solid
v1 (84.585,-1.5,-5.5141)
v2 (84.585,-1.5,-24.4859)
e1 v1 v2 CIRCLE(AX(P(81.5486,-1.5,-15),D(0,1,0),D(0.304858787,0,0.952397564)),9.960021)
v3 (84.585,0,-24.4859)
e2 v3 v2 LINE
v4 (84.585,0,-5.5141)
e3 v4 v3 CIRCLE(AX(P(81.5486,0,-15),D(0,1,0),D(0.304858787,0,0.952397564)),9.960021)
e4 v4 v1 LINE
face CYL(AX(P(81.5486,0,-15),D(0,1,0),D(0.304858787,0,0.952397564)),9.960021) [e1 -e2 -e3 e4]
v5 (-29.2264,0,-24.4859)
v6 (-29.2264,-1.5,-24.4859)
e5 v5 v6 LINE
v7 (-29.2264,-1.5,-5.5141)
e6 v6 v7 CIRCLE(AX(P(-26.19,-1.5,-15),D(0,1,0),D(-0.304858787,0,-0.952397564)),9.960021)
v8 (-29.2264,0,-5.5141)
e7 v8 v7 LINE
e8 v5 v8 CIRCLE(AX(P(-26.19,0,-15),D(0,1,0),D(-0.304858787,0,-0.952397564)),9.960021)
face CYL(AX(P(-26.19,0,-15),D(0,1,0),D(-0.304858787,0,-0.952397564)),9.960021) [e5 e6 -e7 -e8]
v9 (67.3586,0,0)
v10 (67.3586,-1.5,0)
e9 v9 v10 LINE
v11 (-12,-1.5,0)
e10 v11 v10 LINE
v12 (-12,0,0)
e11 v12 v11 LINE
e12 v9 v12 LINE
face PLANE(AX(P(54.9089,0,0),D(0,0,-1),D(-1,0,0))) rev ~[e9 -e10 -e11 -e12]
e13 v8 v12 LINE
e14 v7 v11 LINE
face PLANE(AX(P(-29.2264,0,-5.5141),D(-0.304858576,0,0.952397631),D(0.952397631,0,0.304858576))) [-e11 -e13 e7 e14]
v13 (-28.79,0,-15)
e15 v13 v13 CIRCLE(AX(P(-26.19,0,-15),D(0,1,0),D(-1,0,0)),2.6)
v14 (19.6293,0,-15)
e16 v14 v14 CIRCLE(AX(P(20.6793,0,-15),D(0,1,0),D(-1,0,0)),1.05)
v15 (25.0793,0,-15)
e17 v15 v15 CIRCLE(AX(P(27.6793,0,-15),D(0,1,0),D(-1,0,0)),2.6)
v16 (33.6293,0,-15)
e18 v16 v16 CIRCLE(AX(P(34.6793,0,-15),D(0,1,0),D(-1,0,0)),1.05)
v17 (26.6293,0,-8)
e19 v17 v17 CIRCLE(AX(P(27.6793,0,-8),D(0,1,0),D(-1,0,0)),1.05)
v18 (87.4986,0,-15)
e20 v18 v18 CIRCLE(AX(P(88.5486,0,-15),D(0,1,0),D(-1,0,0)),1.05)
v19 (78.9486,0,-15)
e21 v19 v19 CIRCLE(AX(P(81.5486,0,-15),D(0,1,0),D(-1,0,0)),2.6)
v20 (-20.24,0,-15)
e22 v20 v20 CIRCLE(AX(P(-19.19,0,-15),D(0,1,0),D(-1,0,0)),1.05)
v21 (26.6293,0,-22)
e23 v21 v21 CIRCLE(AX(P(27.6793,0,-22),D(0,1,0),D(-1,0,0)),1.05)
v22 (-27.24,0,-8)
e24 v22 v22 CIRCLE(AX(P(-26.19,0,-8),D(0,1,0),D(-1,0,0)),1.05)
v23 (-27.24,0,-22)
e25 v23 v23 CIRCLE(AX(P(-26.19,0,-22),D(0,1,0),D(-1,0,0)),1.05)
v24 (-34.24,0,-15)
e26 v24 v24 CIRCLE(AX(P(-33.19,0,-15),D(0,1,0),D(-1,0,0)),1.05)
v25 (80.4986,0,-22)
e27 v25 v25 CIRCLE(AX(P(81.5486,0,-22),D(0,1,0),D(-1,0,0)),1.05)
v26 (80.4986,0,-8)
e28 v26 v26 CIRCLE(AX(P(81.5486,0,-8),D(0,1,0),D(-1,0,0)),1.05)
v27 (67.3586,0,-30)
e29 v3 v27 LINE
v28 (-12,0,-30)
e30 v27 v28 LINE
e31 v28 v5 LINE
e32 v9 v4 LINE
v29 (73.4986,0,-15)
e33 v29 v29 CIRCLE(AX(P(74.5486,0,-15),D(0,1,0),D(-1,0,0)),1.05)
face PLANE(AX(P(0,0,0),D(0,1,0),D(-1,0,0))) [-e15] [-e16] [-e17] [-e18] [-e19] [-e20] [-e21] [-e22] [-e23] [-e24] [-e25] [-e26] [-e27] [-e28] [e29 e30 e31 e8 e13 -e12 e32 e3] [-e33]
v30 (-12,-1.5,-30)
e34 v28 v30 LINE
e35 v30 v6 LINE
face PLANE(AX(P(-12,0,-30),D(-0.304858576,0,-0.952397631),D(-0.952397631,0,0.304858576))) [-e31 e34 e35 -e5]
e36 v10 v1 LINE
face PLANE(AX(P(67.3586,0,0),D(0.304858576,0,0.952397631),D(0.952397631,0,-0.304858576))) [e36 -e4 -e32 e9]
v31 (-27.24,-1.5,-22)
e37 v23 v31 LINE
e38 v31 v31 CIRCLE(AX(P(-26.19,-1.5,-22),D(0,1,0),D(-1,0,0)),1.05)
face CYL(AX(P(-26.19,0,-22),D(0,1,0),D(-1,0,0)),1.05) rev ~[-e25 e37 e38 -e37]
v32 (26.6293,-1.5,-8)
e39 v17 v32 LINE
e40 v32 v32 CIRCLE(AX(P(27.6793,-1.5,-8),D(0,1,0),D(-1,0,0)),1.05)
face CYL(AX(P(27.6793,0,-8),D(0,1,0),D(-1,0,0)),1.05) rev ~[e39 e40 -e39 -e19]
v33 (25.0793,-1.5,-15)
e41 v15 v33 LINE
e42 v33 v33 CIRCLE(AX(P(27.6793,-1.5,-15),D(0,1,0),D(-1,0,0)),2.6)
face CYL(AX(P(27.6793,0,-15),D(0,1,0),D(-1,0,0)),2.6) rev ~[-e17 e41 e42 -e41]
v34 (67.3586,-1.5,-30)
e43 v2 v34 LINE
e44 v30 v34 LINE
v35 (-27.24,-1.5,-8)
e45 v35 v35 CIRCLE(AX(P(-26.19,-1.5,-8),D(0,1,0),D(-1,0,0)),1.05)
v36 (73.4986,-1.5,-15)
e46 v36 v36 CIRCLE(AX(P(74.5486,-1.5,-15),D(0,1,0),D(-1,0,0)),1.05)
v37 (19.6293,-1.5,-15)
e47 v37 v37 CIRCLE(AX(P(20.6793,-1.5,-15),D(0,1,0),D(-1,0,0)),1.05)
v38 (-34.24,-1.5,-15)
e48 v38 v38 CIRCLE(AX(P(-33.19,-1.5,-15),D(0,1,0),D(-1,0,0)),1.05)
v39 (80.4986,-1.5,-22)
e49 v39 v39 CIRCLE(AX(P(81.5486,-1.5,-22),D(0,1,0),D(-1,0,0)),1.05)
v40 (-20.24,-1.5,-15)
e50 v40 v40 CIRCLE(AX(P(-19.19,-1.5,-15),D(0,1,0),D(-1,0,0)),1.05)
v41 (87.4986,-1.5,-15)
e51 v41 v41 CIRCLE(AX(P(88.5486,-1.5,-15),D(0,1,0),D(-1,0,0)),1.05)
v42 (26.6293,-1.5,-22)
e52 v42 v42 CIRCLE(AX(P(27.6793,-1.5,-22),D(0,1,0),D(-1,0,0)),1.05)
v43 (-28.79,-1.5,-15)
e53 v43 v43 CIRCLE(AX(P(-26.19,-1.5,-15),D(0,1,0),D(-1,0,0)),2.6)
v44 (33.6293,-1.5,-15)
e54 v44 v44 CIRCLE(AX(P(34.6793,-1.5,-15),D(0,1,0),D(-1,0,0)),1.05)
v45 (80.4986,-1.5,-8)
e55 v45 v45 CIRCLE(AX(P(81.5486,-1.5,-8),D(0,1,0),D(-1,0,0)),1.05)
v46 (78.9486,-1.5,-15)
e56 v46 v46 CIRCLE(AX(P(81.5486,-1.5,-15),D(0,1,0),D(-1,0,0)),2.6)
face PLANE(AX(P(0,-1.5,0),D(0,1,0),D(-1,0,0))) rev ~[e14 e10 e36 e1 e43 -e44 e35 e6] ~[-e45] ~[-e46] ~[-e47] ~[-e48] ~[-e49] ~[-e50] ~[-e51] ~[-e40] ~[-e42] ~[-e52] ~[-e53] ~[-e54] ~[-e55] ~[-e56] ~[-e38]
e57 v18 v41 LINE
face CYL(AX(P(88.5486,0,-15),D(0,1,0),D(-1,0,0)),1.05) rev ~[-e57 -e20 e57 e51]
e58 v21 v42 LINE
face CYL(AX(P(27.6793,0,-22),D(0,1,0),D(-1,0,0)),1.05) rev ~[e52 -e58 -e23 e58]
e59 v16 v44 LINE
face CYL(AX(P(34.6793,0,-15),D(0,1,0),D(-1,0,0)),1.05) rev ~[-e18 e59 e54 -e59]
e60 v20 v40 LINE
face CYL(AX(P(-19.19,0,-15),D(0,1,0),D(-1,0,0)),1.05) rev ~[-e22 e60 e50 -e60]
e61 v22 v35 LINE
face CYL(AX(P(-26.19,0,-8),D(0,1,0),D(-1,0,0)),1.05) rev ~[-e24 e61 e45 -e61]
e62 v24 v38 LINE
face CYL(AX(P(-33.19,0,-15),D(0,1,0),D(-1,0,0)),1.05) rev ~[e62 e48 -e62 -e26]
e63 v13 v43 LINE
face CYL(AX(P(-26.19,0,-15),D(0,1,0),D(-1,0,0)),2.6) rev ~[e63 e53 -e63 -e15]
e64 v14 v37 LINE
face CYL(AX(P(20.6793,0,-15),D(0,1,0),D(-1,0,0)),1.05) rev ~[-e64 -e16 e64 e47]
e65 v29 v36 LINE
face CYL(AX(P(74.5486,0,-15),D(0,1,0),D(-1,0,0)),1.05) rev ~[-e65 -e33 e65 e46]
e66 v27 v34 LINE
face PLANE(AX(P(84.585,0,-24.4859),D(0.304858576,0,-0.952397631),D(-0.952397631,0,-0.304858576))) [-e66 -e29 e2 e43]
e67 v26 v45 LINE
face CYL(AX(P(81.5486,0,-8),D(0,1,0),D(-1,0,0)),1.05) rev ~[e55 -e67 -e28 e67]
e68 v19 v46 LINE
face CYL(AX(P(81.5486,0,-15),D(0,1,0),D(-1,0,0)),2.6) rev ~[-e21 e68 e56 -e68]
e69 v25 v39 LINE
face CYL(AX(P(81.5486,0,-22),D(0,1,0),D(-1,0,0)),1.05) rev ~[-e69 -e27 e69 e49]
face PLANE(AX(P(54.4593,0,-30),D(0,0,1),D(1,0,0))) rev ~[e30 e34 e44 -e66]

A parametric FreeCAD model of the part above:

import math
import FreeCAD as App
import Part
import Sketcher
from FreeCAD import Vector
Q = App.Units.Quantity

doc = App.newDocument("Part")
body = doc.addObject("PartDesign::Body", "Body")

# Sketch on XZ plane
sketch1 = body.newObject("Sketcher::SketchObject", "Sketch")
sketch1.AttachmentSupport = (doc.getObject("XZ_Plane"), [""])
sketch1.MapMode = "FlatFace"
sketch1.addGeometry([
    Part.LineSegment(Vector(67.4, 0, 0), Vector(84.6, -5.5, 0)),  # 0
    Part.ArcOfCircle(Part.Circle(Vector(81.5, -15, 0), Vector(0, 0, 1), 10), math.radians(-72), math.radians(72)),  # 1
    Part.LineSegment(Vector(84.6, -24.5, 0), Vector(67.4, -30, 0)),  # 2
    Part.LineSegment(Vector(67.4, -30, 0), Vector(-12, -30, 0)),  # 3
    Part.LineSegment(Vector(-12, -30, 0), Vector(-29.2, -24.5, 0)),  # 4
    Part.ArcOfCircle(Part.Circle(Vector(-26.2, -15, 0), Vector(0, 0, 1), 10), math.radians(108), math.radians(252)),  # 5
    Part.LineSegment(Vector(-29.2, -5.5, 0), Vector(-12, 0, 0)),  # 6
    Part.LineSegment(Vector(-12, 0, 0), Vector(67.4, 0, 0)),  # 7
    Part.Circle(Vector(27.7, -8, 0), Vector(0, 0, 1), 1.1),  # 8
    Part.Circle(Vector(27.7, -22, 0), Vector(0, 0, 1), 1.1),  # 9
    Part.Circle(Vector(34.7, -15, 0), Vector(0, 0, 1), 1.1),  # 10
    Part.Circle(Vector(27.7, -15, 0), Vector(0, 0, 1), 2.6),  # 11
    Part.Circle(Vector(20.7, -15, 0), Vector(0, 0, 1), 1.1),  # 12
    Part.Circle(Vector(81.5, -8, 0), Vector(0, 0, 1), 1.1),  # 13
    Part.Circle(Vector(81.5, -22, 0), Vector(0, 0, 1), 1.1),  # 14
    Part.Circle(Vector(88.5, -15, 0), Vector(0, 0, 1), 1.1),  # 15
    Part.Circle(Vector(81.5, -15, 0), Vector(0, 0, 1), 2.6),  # 16
    Part.Circle(Vector(74.5, -15, 0), Vector(0, 0, 1), 1.1),  # 17
    Part.Circle(Vector(-26.2, -8, 0), Vector(0, 0, 1), 1.1),  # 18
    Part.Circle(Vector(-26.2, -22, 0), Vector(0, 0, 1), 1.1),  # 19
    Part.Circle(Vector(-19.2, -15, 0), Vector(0, 0, 1), 1.1),  # 20
    Part.Circle(Vector(-26.2, -15, 0), Vector(0, 0, 1), 2.6),  # 21
    Part.Circle(Vector(-33.2, -15, 0), Vector(0, 0, 1), 1.1),  # 22
], False)
sketch1.addConstraint([
    Sketcher.Constraint("Tangent", 0, 2, 1, 2),
    Sketcher.Constraint("Tangent", 1, 1, 2, 1),
    Sketcher.Constraint("Coincident", 2, 2, 3, 1),
    Sketcher.Constraint("Coincident", 3, 2, 4, 1),
    Sketcher.Constraint("Tangent", 4, 2, 5, 2),
    Sketcher.Constraint("Tangent", 5, 1, 6, 1),
    Sketcher.Constraint("Coincident", 6, 2, 7, 1),
    Sketcher.Constraint("Coincident", 7, 2, 0, 1),
    Sketcher.Constraint("Horizontal", 3),
    Sketcher.Constraint("Horizontal", 7),
    Sketcher.Constraint("Coincident", 16, 3, 1, 3),
    Sketcher.Constraint("Coincident", 21, 3, 5, 3),
    Sketcher.Constraint("Equal", 1, 5),
    Sketcher.Constraint("Equal", 8, 9),
    Sketcher.Constraint("Equal", 9, 10),
    Sketcher.Constraint("Equal", 10, 12),
    Sketcher.Constraint("Equal", 12, 13),
    Sketcher.Constraint("Equal", 13, 14),
    Sketcher.Constraint("Equal", 14, 15),
    Sketcher.Constraint("Equal", 11, 16),
    Sketcher.Constraint("Equal", 15, 17),
    Sketcher.Constraint("Equal", 17, 18),
    Sketcher.Constraint("Equal", 18, 19),
    Sketcher.Constraint("Equal", 19, 20),
    Sketcher.Constraint("Equal", 16, 21),
    Sketcher.Constraint("Equal", 20, 22),
    Sketcher.Constraint("PointOnObject", 6, 2, -1),
    Sketcher.Constraint("Parallel", 0, 4),
    Sketcher.Constraint("Parallel", 2, 6),
    Sketcher.Constraint("Horizontal", 1, 3, 5, 3),
    Sketcher.Constraint("Horizontal", 5, 3, 10, 3),
    Sketcher.Constraint("Horizontal", 10, 3, 11, 3),
    Sketcher.Constraint("Horizontal", 11, 3, 12, 3),
    Sketcher.Constraint("Horizontal", 8, 3, 13, 3),
    Sketcher.Constraint("Horizontal", 9, 3, 14, 3),
    Sketcher.Constraint("Horizontal", 12, 3, 15, 3),
    Sketcher.Constraint("Horizontal", 16, 3, 17, 3),
    Sketcher.Constraint("Horizontal", 13, 3, 18, 3),
    Sketcher.Constraint("Horizontal", 14, 3, 19, 3),
    Sketcher.Constraint("Horizontal", 17, 3, 20, 3),
    Sketcher.Constraint("Horizontal", 21, 3, 22, 3),
    Sketcher.Constraint("Horizontal", 1, 1, 4, 2),
    Sketcher.Constraint("Vertical", 8, 3, 9, 3),
    Sketcher.Constraint("Vertical", 9, 3, 11, 3),
    Sketcher.Constraint("Vertical", 1, 3, 13, 3),
    Sketcher.Constraint("Vertical", 13, 3, 14, 3),
    Sketcher.Constraint("Vertical", 5, 3, 18, 3),
    Sketcher.Constraint("Vertical", 18, 3, 19, 3),
    Sketcher.Constraint("Vertical", 3, 2, 6, 2),
    Sketcher.Constraint("Diameter", 8, 2.1),
    Sketcher.Constraint("Diameter", 11, 5.2),
    Sketcher.Constraint("Radius", 1, 9.96),
    Sketcher.Constraint("DistanceY", 1, 3, -1, 1, 15.0),
    Sketcher.Constraint("DistanceY", 8, 3, -1, 1, 8.0),
    Sketcher.Constraint("DistanceY", 9, 3, -1, 1, 22.0),
    Sketcher.Constraint("DistanceX", 3, 2, -1, 1, 12.0),
    Sketcher.Constraint("DistanceX", 8, 3, 10, 3, 7.0),
    Sketcher.Constraint("DistanceX", 12, 3, 11, 3, 7.0),
    Sketcher.Constraint("DistanceX", 1, 3, 15, 3, 7.0),
    Sketcher.Constraint("DistanceX", 17, 3, 1, 3, 7.0),
    Sketcher.Constraint("DistanceX", 5, 3, 20, 3, 7.0),
    Sketcher.Constraint("DistanceX", 22, 3, 5, 3, 7.0),
    Sketcher.Constraint("Angle", 0, Q("-17.7497 deg")),
    Sketcher.Constraint("DistanceX", 3, 2, 3, 1, 79.3586),
    Sketcher.Constraint("DistanceX", -1, 1, 8, 3, 27.6793),
])
pad1 = body.newObject("PartDesign::Pad", "Pad")
pad1.Profile = sketch1
pad1.Length = 1.5

doc.recompute()
